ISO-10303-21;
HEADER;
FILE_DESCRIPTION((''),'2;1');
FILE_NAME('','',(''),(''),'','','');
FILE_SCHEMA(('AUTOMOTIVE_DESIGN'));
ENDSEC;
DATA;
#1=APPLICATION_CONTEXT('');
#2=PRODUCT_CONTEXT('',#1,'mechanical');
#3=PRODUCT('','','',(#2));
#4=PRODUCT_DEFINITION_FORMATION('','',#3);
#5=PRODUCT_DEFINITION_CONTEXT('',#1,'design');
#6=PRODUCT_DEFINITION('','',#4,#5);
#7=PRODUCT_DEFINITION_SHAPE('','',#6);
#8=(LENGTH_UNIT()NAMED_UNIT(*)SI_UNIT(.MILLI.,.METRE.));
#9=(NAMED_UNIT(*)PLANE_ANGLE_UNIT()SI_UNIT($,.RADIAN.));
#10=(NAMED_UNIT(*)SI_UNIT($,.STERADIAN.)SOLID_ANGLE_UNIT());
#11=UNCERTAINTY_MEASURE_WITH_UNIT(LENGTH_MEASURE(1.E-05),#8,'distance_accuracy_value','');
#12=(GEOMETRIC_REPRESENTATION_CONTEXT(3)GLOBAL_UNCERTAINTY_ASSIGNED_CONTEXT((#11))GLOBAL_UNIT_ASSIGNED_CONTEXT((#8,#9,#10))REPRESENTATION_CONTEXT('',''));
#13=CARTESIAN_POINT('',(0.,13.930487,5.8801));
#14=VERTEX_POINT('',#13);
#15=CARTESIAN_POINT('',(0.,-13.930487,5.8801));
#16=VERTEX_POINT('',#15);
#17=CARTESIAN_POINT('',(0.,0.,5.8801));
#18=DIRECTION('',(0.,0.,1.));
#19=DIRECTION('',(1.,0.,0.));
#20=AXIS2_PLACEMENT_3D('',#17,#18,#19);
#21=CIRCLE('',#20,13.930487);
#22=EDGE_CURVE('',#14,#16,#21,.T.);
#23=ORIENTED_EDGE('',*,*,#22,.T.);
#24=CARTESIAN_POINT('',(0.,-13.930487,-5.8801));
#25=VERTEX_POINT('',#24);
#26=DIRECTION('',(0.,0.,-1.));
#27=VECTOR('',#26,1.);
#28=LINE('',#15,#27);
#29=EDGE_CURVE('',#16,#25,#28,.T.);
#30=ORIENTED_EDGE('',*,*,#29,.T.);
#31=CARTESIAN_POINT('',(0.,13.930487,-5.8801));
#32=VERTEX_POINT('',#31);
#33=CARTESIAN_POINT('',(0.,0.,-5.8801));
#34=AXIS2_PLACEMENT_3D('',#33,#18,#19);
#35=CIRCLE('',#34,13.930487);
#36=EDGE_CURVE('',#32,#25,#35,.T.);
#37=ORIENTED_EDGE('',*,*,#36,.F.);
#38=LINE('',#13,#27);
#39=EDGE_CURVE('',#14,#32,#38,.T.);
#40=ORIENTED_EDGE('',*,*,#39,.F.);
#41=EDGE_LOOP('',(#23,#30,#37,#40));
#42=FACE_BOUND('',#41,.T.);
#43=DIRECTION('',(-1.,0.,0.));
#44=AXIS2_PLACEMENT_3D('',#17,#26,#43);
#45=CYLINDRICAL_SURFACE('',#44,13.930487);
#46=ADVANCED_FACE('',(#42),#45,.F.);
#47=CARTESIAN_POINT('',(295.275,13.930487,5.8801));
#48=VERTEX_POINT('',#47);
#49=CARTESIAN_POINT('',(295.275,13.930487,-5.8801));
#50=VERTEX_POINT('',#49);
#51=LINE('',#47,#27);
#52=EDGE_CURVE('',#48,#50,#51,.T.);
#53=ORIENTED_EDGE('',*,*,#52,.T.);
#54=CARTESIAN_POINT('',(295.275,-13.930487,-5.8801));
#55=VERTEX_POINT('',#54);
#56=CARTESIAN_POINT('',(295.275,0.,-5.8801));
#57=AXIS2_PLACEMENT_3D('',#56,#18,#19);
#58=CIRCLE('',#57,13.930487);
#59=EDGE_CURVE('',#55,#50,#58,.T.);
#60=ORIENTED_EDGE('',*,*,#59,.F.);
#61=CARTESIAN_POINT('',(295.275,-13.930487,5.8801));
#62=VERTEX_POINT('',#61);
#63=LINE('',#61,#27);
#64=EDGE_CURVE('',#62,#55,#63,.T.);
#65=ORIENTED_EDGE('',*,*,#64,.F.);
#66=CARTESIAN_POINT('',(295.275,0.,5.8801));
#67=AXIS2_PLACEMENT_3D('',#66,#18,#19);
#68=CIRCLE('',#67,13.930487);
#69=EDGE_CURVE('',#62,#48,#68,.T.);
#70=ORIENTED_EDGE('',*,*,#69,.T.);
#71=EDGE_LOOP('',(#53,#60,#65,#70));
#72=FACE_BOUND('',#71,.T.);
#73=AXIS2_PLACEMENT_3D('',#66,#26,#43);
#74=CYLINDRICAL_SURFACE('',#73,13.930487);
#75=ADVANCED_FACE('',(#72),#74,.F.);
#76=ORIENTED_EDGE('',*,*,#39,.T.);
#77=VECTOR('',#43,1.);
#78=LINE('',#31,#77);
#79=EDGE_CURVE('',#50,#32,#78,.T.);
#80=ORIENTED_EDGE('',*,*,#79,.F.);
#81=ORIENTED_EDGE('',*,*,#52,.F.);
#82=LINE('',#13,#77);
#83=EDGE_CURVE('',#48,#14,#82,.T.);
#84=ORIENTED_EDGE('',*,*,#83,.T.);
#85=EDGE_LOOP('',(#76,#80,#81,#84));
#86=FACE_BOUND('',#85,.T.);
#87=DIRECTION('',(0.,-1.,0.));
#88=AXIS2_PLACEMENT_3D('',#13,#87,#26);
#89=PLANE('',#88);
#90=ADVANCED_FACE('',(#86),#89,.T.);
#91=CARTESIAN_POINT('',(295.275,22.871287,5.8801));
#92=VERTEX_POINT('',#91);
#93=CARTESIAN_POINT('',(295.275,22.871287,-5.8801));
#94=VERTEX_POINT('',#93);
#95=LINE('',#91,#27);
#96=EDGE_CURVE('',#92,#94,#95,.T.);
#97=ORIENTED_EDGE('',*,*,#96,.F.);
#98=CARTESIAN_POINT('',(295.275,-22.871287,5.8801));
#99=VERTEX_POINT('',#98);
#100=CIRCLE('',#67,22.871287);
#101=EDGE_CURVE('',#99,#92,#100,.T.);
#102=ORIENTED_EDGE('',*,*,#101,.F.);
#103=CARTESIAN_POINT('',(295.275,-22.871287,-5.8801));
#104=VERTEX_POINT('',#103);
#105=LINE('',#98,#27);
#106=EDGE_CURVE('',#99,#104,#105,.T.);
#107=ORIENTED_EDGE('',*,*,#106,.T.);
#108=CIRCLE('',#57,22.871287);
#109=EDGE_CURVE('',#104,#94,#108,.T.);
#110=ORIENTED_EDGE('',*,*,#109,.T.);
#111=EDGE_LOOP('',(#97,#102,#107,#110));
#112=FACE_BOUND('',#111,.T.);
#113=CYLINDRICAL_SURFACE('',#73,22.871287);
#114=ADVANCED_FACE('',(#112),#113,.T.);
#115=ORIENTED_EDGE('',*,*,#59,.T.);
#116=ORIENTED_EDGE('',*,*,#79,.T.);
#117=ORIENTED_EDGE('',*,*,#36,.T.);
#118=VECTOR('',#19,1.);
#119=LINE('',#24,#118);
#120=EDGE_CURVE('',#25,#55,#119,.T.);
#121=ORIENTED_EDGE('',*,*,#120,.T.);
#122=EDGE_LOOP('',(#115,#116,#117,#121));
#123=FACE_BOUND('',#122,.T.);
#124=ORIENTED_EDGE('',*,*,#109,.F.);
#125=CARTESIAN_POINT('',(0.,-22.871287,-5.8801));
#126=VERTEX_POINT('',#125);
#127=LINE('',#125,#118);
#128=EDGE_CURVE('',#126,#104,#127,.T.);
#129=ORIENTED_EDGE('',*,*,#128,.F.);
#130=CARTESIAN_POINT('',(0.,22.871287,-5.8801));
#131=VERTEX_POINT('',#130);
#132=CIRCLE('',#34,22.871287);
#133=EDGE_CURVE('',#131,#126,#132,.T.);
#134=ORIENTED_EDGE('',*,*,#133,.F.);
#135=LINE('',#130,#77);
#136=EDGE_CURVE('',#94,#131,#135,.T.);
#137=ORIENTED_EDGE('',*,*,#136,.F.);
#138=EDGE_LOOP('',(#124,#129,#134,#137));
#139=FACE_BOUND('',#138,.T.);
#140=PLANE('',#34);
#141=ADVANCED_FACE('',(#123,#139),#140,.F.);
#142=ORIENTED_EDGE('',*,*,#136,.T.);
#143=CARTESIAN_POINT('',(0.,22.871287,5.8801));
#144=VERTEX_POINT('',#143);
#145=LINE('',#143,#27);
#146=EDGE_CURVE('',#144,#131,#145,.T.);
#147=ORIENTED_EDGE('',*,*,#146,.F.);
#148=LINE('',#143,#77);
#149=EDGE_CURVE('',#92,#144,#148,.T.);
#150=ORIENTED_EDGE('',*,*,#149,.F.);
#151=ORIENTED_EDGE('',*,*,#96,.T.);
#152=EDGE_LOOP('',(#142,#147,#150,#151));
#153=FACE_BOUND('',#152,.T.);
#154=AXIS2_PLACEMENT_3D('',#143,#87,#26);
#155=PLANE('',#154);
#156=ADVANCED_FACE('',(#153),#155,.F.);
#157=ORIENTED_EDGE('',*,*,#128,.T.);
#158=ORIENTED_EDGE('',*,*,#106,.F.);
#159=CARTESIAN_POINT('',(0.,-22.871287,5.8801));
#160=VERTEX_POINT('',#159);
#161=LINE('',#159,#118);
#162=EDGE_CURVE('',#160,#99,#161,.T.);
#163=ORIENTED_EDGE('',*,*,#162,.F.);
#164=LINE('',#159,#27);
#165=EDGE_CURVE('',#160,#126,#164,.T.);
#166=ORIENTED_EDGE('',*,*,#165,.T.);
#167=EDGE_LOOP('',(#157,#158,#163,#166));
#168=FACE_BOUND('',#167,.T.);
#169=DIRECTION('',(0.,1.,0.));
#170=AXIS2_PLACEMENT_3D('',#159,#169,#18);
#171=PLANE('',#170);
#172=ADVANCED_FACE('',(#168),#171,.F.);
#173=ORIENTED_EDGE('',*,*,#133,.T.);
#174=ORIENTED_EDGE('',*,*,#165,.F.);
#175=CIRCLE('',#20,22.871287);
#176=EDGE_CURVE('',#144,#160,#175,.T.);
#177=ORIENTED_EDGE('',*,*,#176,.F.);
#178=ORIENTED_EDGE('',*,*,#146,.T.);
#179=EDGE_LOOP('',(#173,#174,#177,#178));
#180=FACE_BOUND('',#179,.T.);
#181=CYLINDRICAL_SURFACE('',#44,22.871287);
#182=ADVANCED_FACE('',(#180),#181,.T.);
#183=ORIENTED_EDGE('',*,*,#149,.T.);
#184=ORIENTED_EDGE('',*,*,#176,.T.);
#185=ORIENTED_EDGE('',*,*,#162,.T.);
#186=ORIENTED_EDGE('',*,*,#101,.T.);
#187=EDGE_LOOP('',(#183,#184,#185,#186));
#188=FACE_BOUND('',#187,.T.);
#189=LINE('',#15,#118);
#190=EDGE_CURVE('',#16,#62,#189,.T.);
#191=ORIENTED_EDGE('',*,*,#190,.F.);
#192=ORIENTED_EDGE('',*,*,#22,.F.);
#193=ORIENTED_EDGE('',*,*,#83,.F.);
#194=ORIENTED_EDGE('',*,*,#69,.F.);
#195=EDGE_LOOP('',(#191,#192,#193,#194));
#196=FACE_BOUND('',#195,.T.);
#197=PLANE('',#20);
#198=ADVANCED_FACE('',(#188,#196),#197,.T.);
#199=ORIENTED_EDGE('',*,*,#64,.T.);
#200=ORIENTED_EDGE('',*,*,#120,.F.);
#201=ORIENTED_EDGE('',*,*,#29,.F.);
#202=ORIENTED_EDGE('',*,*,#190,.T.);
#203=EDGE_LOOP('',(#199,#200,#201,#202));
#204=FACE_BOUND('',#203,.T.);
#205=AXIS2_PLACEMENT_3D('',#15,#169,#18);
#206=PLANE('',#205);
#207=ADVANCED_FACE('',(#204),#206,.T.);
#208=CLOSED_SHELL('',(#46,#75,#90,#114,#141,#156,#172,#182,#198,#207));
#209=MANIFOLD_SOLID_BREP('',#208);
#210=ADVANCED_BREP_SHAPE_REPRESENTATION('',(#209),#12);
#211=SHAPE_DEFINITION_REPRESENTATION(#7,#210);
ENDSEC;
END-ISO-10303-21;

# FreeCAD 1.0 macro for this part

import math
import FreeCAD as App
import Part
import Sketcher

V = App.Vector
Q = App.Units.Quantity

doc = App.newDocument("Part")
body = doc.addObject("PartDesign::Body", "Body")

# Sketch on XY plane
sketch1 = body.newObject("Sketcher::SketchObject", "Sketch")
sketch1.AttachmentSupport = (doc.getObject("XY_Plane"), [""])
sketch1.MapMode = "FlatFace"
sketch1.addGeometry([
    Part.LineSegment(V(0, -23, 0), V(295, -23, 0)),  # 0
    Part.ArcOfCircle(Part.Circle(V(295, 0, 0), V(0, 0, 1), 23), math.radians(-90), math.radians(90)),  # 1
    Part.LineSegment(V(295, 23, 0), V(0, 23, 0)),  # 2
    Part.ArcOfCircle(Part.Circle(V(0, 0, 0), V(0, 0, 1), 23), math.radians(90), math.radians(270)),  # 3
    Part.LineSegment(V(295, -14, 0), V(0, -14, 0)),  # 4
    Part.ArcOfCircle(Part.Circle(V(0, 0, 0), V(0, 0, 1), 14), math.radians(90), math.radians(270)),  # 5
    Part.LineSegment(V(0, 14, 0), V(295, 14, 0)),  # 6
    Part.ArcOfCircle(Part.Circle(V(295, 0, 0), V(0, 0, 1), 14), math.radians(-90), math.radians(90)),  # 7
], False)
sketch1.addConstraint([
    Sketcher.Constraint("Tangent", 0, 2, 1, 1),
    Sketcher.Constraint("Tangent", 1, 2, 2, 1),
    Sketcher.Constraint("Tangent", 2, 2, 3, 1),
    Sketcher.Constraint("Tangent", 3, 2, 0, 1),
    Sketcher.Constraint("Tangent", 4, 2, 5, 2),
    Sketcher.Constraint("Tangent", 5, 1, 6, 1),
    Sketcher.Constraint("Tangent", 6, 2, 7, 2),
    Sketcher.Constraint("Tangent", 7, 1, 4, 1),
    Sketcher.Constraint("Horizontal", 0),
    Sketcher.Constraint("Horizontal", 2),
    Sketcher.Constraint("Horizontal", 4),
    Sketcher.Constraint("Horizontal", 6),
    Sketcher.Constraint("Coincident", 3, 3, -1, 1),
    Sketcher.Constraint("Coincident", 5, 3, -1, 1),
    Sketcher.Constraint("Vertical", 7, 3, 0, 2),
    Sketcher.Constraint("DistanceX", 0, 1, 0, 2, Q("11.625 in")),
    Sketcher.Constraint("DistanceY", 3, 2, 4, 2, Q("0.352 in")),
    Sketcher.Constraint("Radius", 1, Q("22.871287 mm")),
])
pad1 = body.newObject("PartDesign::Pad", "Pad")
pad1.Profile = sketch1
pad1.Length = Q("0.463 in")
pad1.Midplane = True

doc.recompute()
